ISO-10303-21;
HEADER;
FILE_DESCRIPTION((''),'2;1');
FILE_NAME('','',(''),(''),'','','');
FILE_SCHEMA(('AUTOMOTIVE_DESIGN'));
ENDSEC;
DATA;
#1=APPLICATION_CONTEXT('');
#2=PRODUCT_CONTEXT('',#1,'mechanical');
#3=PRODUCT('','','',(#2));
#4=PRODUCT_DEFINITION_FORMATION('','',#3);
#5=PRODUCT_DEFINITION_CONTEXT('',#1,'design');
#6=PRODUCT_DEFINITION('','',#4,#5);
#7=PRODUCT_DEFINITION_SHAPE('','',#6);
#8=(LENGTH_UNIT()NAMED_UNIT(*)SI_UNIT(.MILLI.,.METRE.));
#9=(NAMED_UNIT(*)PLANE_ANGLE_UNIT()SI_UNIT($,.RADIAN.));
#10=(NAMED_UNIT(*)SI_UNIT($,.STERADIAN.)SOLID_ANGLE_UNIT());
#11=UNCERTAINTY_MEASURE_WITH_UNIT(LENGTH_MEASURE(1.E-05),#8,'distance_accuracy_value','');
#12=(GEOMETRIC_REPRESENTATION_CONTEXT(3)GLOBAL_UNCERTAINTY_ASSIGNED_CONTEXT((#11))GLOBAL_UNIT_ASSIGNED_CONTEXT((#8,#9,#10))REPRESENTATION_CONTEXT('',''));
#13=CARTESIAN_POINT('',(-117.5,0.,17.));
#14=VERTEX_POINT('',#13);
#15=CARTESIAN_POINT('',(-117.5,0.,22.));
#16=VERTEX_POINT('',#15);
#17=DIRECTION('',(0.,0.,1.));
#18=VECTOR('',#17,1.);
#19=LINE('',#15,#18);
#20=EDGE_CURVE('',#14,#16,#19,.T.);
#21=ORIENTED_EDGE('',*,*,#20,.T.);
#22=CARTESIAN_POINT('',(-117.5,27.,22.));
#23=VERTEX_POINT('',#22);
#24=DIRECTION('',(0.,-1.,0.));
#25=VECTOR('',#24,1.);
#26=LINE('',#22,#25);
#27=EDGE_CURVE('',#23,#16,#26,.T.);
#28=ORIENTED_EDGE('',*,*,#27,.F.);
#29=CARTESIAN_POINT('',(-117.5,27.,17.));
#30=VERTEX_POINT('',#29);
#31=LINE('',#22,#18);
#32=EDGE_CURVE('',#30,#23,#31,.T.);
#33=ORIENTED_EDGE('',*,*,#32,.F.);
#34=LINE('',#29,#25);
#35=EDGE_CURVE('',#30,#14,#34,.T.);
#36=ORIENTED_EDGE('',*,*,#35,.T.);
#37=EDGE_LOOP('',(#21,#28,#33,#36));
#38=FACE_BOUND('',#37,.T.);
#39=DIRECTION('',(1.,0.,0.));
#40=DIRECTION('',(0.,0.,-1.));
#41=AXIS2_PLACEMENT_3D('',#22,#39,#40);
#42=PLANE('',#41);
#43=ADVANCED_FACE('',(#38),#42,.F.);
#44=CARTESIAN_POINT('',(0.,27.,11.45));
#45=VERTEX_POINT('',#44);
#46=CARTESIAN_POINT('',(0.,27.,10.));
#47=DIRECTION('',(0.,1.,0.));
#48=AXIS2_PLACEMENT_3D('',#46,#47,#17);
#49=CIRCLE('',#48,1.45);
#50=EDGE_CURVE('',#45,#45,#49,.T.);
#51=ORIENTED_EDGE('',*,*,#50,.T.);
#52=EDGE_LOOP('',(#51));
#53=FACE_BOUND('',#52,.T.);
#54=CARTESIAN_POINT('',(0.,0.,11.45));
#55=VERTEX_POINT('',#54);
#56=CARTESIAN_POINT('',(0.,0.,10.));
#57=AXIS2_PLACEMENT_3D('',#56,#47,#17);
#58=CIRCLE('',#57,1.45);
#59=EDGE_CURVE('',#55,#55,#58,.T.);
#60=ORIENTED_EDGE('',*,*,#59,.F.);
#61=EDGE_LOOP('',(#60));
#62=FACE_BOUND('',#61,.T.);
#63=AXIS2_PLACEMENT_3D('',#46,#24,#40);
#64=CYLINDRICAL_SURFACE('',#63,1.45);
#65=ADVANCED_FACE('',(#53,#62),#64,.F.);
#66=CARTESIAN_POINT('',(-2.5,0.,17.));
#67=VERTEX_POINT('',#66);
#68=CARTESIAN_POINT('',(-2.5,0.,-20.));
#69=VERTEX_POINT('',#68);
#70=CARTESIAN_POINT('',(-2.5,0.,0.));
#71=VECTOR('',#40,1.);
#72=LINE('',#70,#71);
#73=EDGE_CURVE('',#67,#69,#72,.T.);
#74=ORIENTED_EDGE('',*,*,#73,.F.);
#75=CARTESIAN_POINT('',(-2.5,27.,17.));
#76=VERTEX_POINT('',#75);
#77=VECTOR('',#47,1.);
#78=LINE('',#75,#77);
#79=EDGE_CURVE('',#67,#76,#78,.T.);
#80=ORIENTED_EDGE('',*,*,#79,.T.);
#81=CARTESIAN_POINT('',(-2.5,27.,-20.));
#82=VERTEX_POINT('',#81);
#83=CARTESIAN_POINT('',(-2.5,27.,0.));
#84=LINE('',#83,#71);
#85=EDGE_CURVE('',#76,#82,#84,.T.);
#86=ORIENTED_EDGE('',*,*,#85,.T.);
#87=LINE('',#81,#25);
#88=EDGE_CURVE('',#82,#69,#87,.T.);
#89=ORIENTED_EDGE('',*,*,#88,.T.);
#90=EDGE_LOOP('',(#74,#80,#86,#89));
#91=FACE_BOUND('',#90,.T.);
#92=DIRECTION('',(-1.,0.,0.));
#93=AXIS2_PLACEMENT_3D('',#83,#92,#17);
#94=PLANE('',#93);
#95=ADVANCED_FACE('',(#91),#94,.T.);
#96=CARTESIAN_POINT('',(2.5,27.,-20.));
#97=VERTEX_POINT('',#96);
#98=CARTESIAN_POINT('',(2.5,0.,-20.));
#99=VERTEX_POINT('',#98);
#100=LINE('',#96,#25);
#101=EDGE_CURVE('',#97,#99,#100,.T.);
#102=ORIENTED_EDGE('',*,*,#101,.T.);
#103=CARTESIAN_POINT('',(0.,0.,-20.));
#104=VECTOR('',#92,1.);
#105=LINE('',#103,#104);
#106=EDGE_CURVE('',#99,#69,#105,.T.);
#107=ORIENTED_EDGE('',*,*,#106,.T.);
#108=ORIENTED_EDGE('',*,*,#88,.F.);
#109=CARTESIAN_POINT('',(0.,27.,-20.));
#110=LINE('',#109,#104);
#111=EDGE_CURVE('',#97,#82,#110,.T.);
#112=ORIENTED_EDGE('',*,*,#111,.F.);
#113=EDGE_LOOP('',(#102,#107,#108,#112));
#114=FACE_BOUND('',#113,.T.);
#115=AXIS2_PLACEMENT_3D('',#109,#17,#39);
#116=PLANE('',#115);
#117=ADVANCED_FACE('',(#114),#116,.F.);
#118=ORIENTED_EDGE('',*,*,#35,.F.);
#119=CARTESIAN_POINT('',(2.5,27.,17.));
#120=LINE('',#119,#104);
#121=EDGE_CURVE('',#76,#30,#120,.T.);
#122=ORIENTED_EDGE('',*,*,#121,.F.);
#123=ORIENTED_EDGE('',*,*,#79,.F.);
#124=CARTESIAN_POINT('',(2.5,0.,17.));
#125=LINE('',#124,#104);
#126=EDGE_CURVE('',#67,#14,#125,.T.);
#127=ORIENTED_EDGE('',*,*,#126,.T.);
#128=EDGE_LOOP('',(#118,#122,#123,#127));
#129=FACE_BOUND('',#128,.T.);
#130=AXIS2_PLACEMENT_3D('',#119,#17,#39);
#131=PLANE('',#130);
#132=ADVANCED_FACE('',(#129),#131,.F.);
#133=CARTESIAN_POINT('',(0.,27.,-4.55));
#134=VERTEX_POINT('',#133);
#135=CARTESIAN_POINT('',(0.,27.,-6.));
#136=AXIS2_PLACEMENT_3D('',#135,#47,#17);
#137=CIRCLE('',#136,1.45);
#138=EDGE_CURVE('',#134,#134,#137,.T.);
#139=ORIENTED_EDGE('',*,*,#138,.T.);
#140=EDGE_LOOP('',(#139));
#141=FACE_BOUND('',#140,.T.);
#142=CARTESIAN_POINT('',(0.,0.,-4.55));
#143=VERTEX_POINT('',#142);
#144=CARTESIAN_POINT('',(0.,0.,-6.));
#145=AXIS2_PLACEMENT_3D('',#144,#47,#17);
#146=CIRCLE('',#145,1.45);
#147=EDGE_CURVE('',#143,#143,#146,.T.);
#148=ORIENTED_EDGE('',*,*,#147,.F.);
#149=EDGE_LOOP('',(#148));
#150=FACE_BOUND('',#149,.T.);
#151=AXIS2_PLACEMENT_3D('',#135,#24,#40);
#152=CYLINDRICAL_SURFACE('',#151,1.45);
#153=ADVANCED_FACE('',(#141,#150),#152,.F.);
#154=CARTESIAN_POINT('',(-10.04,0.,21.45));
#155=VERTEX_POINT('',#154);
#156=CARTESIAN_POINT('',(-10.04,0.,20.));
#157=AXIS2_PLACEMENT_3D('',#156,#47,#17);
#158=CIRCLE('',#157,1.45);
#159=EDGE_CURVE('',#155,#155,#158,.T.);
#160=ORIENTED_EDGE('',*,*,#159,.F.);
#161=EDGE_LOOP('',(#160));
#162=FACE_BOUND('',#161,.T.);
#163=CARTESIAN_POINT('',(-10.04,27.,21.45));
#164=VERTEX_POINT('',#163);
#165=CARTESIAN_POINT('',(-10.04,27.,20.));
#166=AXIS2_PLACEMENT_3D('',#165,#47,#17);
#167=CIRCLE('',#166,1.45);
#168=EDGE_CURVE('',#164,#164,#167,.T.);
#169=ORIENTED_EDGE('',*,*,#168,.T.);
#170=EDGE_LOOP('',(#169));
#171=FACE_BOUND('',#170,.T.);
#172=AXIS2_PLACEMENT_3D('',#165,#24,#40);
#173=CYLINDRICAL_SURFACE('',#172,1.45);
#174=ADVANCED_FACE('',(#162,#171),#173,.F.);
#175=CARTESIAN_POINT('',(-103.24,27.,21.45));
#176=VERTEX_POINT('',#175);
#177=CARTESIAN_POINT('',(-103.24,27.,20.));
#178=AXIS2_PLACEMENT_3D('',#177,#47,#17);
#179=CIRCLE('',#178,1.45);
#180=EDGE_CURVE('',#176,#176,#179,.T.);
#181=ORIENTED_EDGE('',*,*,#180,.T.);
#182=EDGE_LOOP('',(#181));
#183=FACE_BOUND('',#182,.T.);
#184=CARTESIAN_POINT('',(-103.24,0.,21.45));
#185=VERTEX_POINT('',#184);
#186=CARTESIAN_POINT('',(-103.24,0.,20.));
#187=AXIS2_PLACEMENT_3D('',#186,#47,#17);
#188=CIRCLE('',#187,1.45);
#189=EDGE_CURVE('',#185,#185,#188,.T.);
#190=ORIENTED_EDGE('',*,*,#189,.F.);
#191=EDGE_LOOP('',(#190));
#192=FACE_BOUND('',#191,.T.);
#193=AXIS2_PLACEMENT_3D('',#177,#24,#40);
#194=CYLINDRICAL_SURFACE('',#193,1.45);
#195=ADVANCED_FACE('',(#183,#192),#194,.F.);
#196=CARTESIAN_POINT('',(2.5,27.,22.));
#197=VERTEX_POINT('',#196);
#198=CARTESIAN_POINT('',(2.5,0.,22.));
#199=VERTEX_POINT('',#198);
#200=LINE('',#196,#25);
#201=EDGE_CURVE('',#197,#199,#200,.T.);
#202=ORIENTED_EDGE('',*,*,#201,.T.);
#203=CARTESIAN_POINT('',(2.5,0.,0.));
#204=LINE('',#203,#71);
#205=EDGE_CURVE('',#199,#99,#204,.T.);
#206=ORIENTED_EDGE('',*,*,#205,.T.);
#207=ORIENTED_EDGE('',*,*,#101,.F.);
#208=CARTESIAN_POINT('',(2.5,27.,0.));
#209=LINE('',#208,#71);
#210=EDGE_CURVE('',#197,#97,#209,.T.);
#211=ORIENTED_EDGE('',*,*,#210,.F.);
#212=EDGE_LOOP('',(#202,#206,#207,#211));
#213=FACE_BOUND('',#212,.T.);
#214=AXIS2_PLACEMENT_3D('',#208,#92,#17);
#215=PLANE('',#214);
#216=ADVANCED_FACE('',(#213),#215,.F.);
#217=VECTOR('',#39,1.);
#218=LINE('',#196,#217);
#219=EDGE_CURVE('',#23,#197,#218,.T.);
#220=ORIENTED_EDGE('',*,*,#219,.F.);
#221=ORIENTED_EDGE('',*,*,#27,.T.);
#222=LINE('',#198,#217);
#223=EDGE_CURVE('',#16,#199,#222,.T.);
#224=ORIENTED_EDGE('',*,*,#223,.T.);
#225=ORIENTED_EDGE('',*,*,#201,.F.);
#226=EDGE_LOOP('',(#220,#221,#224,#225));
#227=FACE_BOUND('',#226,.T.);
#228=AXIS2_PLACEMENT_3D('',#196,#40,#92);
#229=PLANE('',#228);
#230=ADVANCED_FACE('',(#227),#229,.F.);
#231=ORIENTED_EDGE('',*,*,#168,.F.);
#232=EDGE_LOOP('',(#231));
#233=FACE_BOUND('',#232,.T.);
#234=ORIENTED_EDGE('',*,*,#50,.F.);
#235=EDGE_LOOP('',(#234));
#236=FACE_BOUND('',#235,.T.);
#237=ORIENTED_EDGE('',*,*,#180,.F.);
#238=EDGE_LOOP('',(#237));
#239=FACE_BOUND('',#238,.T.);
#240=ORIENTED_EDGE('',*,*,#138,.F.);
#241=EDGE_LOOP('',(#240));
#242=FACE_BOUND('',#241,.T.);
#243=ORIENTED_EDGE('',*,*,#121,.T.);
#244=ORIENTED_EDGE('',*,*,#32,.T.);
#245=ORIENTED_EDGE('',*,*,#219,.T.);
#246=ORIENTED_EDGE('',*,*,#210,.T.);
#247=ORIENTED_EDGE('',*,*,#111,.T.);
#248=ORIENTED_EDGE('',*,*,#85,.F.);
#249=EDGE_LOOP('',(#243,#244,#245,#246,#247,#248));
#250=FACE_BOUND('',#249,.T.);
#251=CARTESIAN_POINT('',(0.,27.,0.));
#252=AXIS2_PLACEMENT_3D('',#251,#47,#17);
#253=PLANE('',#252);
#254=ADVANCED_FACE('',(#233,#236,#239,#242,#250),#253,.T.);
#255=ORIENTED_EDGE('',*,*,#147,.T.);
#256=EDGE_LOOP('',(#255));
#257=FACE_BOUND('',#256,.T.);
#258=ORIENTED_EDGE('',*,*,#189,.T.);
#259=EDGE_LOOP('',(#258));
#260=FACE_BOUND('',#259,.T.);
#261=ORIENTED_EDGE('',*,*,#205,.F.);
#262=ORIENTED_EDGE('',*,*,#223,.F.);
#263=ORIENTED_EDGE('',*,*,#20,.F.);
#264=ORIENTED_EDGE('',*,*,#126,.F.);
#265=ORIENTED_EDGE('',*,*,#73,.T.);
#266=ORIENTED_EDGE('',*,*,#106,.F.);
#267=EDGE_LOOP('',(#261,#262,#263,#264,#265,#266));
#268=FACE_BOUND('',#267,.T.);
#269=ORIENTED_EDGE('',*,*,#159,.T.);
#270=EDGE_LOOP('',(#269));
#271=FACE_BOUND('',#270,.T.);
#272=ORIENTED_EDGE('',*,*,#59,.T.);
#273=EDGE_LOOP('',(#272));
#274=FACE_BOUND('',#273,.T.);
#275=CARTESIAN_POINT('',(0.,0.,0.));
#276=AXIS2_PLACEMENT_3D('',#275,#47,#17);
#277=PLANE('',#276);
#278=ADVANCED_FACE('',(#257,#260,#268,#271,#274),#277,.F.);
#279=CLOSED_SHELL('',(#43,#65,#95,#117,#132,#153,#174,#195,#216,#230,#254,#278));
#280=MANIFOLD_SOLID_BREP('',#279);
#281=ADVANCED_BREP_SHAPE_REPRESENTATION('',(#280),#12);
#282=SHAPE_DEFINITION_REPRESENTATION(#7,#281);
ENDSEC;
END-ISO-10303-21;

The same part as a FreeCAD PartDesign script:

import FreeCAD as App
import Part
import Sketcher


def add_polygon(sketch, points):
    """Adds a closed chain of lines whose ends are joined by coincident constraints."""
    first, n = sketch.GeometryCount, len(points)
    for a, b in zip(points, points[1:] + points[:1]):
        sketch.addGeometry(Part.LineSegment(App.Vector(*a, 0), App.Vector(*b, 0)), False)
    for i in range(n):
        sketch.addConstraint(Sketcher.Constraint("Coincident", first + i, 2, first + (i + 1) % n, 1))

doc = App.newDocument("Part")
body = doc.addObject("PartDesign::Body", "Body")

# Sketch on XZ plane
sketch1 = body.newObject("Sketcher::SketchObject", "Sketch")
sketch1.AttachmentSupport = (doc.getObject("XZ_Plane"), [""])
sketch1.MapMode = "FlatFace"
add_polygon(sketch1, [(-2.5, -20), (-2.5, 20), (2.5, 20), (2.5, -20)])  # lines 0-3
sketch1.addGeometry(Part.Circle(App.Vector(0, 10, 0), App.Vector(0, 0, 1), 1.4), False)  # 4
sketch1.addGeometry(Part.Circle(App.Vector(0, -6, 0), App.Vector(0, 0, 1), 1.4), False)  # 5
sketch1.addConstraint([
    Sketcher.Constraint("Vertical", 0),
    Sketcher.Constraint("Horizontal", 1),
    Sketcher.Constraint("Vertical", 2),
    Sketcher.Constraint("Horizontal", 3),
    Sketcher.Constraint("Equal", 4, 5),
    Sketcher.Constraint("Symmetric", 0, 2, 2, 2, -1, 1),
    Sketcher.Constraint("PointOnObject", 4, 3, -2),
    Sketcher.Constraint("PointOnObject", 5, 3, -2),
    Sketcher.Constraint("Diameter", 4, 2.9),
    Sketcher.Constraint("DistanceX", 1, 1, 1, 2, 5.0),
    Sketcher.Constraint("DistanceY", 0, 1, 0, 2, 40.0),
    Sketcher.Constraint("DistanceY", -1, 1, 4, 3, 10.0),
    Sketcher.Constraint("DistanceY", 5, 3, -1, 1, 6.0),
])
pad1 = body.newObject("PartDesign::Pad", "Pad")
pad1.Profile = sketch1
pad1.Length = 27
pad1.Reversed = True

# Sketch on XZ plane
sketch2 = body.newObject("Sketcher::SketchObject", "Sketch001")
sketch2.AttachmentSupport = (doc.getObject("XZ_Plane"), [""])
sketch2.MapMode = "FlatFace"
add_polygon(sketch2, [(-117.5, 17), (-117.5, 22), (2.5, 22), (2.5, 17)])  # lines 0-3
sketch2.addGeometry(Part.Circle(App.Vector(-103.2, 20, 0), App.Vector(0, 0, 1), 1.4), False)  # 4
sketch2.addGeometry(Part.Circle(App.Vector(-10, 20, 0), App.Vector(0, 0, 1), 1.4), False)  # 5
sketch2.addConstraint([
    Sketcher.Constraint("Vertical", 0),
    Sketcher.Constraint("Horizontal", 1),
    Sketcher.Constraint("Vertical", 2),
    Sketcher.Constraint("Horizontal", 3),
    Sketcher.Constraint("Equal", 4, 5),
    Sketcher.Constraint("Horizontal", 4, 3, 5, 3),
    Sketcher.Constraint("Diameter", 4, 2.9),
    Sketcher.Constraint("DistanceX", 1, 1, 1, 2, 120.0),
    Sketcher.Constraint("DistanceY", 0, 1, 0, 2, 5.0),
    Sketcher.Constraint("DistanceY", -1, 1, 4, 3, 20.0),
    Sketcher.Constraint("DistanceY", -1, 1, 0, 2, 22.0),
    Sketcher.Constraint("DistanceX", 0, 2, -1, 1, 117.5),
    Sketcher.Constraint("DistanceX", 4, 3, 5, 3, 93.2),
    Sketcher.Constraint("DistanceX", 4, 3, -1, 1, 103.24),
])
pad2 = body.newObject("PartDesign::Pad", "Pad001")
pad2.Profile = sketch2
pad2.Length = 27
pad2.Reversed = True

doc.recompute()
